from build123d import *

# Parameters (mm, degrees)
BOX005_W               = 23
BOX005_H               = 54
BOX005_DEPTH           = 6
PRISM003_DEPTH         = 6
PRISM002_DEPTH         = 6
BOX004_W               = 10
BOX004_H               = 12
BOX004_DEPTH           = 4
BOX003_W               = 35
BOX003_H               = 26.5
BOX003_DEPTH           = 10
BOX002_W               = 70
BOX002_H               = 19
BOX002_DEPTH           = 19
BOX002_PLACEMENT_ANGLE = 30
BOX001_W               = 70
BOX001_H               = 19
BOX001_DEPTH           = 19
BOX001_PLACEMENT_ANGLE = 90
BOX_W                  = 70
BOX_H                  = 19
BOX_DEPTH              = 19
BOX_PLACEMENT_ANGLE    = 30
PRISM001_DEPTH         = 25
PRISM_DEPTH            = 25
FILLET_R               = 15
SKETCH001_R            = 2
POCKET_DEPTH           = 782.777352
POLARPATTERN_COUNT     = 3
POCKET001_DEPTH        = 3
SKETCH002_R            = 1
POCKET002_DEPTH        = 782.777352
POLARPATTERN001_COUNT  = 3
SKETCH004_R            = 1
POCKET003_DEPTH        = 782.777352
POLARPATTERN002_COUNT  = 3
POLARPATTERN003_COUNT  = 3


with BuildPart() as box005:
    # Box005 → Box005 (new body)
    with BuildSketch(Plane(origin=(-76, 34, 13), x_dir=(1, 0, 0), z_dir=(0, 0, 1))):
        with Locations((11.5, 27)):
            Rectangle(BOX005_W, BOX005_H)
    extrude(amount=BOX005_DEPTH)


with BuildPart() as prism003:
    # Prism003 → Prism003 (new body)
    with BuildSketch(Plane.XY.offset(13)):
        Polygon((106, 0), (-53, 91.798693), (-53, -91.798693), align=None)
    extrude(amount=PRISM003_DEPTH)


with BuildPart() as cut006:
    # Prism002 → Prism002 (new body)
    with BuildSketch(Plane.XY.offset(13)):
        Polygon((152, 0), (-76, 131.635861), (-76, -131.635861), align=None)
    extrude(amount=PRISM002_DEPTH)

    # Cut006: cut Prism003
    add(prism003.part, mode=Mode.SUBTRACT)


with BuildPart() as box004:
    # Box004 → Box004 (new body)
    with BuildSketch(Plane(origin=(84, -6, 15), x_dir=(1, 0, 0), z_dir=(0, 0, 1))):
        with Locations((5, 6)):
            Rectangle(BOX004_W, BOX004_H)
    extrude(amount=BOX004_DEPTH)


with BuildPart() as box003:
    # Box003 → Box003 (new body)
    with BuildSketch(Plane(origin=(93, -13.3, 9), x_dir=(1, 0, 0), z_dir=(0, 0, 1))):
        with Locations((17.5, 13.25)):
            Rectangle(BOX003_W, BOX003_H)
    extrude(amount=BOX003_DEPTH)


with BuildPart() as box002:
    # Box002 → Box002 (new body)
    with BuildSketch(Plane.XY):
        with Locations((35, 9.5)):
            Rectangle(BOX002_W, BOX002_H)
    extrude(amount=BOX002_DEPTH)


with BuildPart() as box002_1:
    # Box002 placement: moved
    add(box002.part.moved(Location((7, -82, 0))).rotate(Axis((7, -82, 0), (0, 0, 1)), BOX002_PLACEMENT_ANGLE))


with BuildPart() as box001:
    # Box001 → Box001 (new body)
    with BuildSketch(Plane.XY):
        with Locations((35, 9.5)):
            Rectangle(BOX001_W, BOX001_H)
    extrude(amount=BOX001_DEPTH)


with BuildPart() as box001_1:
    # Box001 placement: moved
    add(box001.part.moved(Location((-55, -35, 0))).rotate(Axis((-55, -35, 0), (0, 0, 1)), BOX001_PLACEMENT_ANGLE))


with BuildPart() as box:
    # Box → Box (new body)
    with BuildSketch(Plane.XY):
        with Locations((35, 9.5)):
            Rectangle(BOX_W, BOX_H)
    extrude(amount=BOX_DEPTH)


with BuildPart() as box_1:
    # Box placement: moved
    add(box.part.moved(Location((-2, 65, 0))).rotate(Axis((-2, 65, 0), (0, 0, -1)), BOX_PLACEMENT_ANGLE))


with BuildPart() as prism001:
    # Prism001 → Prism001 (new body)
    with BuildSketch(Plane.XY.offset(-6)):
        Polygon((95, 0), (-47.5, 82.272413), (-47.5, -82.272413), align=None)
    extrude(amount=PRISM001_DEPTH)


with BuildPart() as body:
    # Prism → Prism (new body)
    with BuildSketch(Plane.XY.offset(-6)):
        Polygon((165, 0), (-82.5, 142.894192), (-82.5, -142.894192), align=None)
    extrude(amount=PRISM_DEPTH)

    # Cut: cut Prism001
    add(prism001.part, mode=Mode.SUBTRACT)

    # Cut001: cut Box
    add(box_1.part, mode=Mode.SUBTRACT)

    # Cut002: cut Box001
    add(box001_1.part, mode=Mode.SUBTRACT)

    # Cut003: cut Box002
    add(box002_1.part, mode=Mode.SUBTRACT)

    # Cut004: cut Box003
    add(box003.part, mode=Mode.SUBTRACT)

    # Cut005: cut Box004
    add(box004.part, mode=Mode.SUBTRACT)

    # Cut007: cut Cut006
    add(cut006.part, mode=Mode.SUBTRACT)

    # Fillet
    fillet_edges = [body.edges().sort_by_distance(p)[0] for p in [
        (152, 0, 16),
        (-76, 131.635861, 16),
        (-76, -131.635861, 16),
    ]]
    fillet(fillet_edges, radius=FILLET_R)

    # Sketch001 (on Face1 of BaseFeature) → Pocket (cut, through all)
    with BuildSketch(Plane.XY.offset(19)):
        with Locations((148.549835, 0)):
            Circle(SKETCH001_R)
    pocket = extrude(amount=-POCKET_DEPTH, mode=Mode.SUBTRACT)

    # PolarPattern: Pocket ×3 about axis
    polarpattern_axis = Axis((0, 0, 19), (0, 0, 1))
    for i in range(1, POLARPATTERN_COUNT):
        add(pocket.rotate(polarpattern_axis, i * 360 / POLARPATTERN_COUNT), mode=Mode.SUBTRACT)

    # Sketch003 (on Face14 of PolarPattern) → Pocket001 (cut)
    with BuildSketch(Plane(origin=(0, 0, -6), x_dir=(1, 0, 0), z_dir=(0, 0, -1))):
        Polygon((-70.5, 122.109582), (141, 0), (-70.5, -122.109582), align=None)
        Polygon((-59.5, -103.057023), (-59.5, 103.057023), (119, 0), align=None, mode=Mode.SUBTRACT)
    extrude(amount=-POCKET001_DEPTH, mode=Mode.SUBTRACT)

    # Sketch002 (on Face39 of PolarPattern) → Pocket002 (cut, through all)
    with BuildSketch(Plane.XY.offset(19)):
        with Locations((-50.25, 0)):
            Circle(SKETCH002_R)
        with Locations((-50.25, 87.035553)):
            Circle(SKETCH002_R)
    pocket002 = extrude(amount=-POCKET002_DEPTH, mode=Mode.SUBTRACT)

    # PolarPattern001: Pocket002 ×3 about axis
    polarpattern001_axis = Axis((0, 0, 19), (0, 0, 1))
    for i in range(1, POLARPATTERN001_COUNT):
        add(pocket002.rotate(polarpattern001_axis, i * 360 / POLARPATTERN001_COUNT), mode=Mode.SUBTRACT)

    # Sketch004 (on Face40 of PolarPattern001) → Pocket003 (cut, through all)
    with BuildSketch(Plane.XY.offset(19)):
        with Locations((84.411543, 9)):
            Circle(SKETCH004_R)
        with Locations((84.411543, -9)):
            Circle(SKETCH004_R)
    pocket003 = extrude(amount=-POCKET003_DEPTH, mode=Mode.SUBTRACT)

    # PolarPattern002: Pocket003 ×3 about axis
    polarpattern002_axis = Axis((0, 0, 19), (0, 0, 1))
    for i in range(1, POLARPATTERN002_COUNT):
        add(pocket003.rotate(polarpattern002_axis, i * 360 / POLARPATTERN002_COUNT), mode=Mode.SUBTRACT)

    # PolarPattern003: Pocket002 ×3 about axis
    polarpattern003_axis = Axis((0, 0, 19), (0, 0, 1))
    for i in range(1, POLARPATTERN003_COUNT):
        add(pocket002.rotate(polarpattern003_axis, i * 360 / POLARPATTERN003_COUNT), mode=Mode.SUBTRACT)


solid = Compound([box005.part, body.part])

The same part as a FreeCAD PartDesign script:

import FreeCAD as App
import Part
import Sketcher
from FreeCAD import Vector
Q = App.Units.Quantity


def edges_at(feature, points):
    """Names of the edges that pass closest to the given points."""
    edges = feature.Shape.Edges
    near = lambda p: min(range(len(edges)), key=lambda i: edges[i].distToShape(Part.Vertex(*p))[0])
    return sorted({f"Edge{near(p) + 1}" for p in points})

doc = App.newDocument("Part")
body = doc.addObject("PartDesign::Body", "Body")

sketch1 = body.newObject("Sketcher::SketchObject", "Sketch")
sketch1.AttachmentSupport = (doc.getObject("XY_Plane"), [""])
sketch1.MapMode = "FlatFace"
sketch1.AttachmentOffset = App.Placement(Vector(0, 0, 13), App.Rotation())
sketch1.addGeometry(Part.LineSegment(Vector(-76, 88, 0), Vector(-76, 34, 0)), False)
sketch1.addGeometry(Part.LineSegment(Vector(-76, 34, 0), Vector(-53, 34, 0)), False)
sketch1.addGeometry(Part.LineSegment(Vector(-53, 34, 0), Vector(-53, 88, 0)), False)
sketch1.addGeometry(Part.LineSegment(Vector(-53, 88, 0), Vector(-76, 88, 0)), False)
sketch1.addConstraint(Sketcher.Constraint("Coincident", 0, 2, 1, 1))
sketch1.addConstraint(Sketcher.Constraint("Coincident", 1, 2, 2, 1))
sketch1.addConstraint(Sketcher.Constraint("Coincident", 2, 2, 3, 1))
sketch1.addConstraint(Sketcher.Constraint("Coincident", 3, 2, 0, 1))
sketch1.addConstraint(Sketcher.Constraint("Vertical", 0))
sketch1.addConstraint(Sketcher.Constraint("Horizontal", 1))
sketch1.addConstraint(Sketcher.Constraint("Vertical", 2))
sketch1.addConstraint(Sketcher.Constraint("Horizontal", 3))
sketch1.addConstraint(Sketcher.Constraint("DistanceX", 1, 1, 1, 2, 23.0))
sketch1.addConstraint(Sketcher.Constraint("DistanceY", 0, 2, 0, 1, 54.0))
sketch1.addConstraint(Sketcher.Constraint("DistanceX", 0, 2, -1, 1, 76.0))
sketch1.addConstraint(Sketcher.Constraint("DistanceY", -1, 1, 0, 2, 34.0))
pad1 = body.newObject("PartDesign::Pad", "Pad")
pad1.Profile = sketch1
pad1.Length = 6
body2 = doc.addObject("PartDesign::Body", "Body001")

sketch2 = body2.newObject("Sketcher::SketchObject", "Sketch001")
sketch2.AttachmentSupport = (doc.getObject("XY_Plane001"), [""])
sketch2.MapMode = "FlatFace"
sketch2.AttachmentOffset = App.Placement(Vector(0, 0, 13), App.Rotation())
sketch2.addGeometry(Part.LineSegment(Vector(106, 0, 0), Vector(-53, 92, 0)), False)
sketch2.addGeometry(Part.LineSegment(Vector(-53, 92, 0), Vector(-53, -92, 0)), False)
sketch2.addGeometry(Part.LineSegment(Vector(-53, -92, 0), Vector(106, 0, 0)), False)
sketch2.addConstraint(Sketcher.Constraint("Coincident", 0, 2, 1, 1))
sketch2.addConstraint(Sketcher.Constraint("Coincident", 1, 2, 2, 1))
sketch2.addConstraint(Sketcher.Constraint("Coincident", 2, 2, 0, 1))
sketch2.addConstraint(Sketcher.Constraint("Vertical", 1))
sketch2.addConstraint(Sketcher.Constraint("PointOnObject", 2, 2, -1))
sketch2.addConstraint(Sketcher.Constraint("Equal", 0, 2))
sketch2.addConstraint(Sketcher.Constraint("Angle", 0, Q("150 deg")))
sketch2.addConstraint(Sketcher.Constraint("DistanceX", 0, 2, -1, 1, 53.0))
sketch2.addConstraint(Sketcher.Constraint("DistanceX", -1, 1, 2, 2, 106.0))
pad2 = body2.newObject("PartDesign::Pad", "Pad001")
pad2.Profile = sketch2
pad2.Length = 6
body3 = doc.addObject("PartDesign::Body", "Body002")

sketch3 = body3.newObject("Sketcher::SketchObject", "Sketch002")
sketch3.AttachmentSupport = (doc.getObject("XY_Plane002"), [""])
sketch3.MapMode = "FlatFace"
sketch3.AttachmentOffset = App.Placement(Vector(0, 0, 13), App.Rotation())
sketch3.addGeometry(Part.LineSegment(Vector(152, 0, 0), Vector(-76, 132, 0)), False)
sketch3.addGeometry(Part.LineSegment(Vector(-76, 132, 0), Vector(-76, -132, 0)), False)
sketch3.addGeometry(Part.LineSegment(Vector(-76, -132, 0), Vector(152, 0, 0)), False)
sketch3.addConstraint(Sketcher.Constraint("Coincident", 0, 2, 1, 1))
sketch3.addConstraint(Sketcher.Constraint("Coincident", 1, 2, 2, 1))
sketch3.addConstraint(Sketcher.Constraint("Coincident", 2, 2, 0, 1))
sketch3.addConstraint(Sketcher.Constraint("Vertical", 1))
sketch3.addConstraint(Sketcher.Constraint("PointOnObject", 2, 2, -1))
sketch3.addConstraint(Sketcher.Constraint("Equal", 0, 2))
sketch3.addConstraint(Sketcher.Constraint("Angle", 0, Q("150 deg")))
sketch3.addConstraint(Sketcher.Constraint("DistanceX", 0, 2, -1, 1, 76.0))
sketch3.addConstraint(Sketcher.Constraint("DistanceX", -1, 1, 2, 2, 152.0))
pad3 = body3.newObject("PartDesign::Pad", "Pad002")
pad3.Profile = sketch3
pad3.Length = 6
doc.recompute()

boolean = body3.newObject("PartDesign::Boolean", "Boolean")
boolean.Type = "Cut"
boolean.addObjects([body2])
body4 = doc.addObject("PartDesign::Body", "Body003")

sketch4 = body4.newObject("Sketcher::SketchObject", "Sketch003")
sketch4.AttachmentSupport = (doc.getObject("XY_Plane003"), [""])
sketch4.MapMode = "FlatFace"
sketch4.AttachmentOffset = App.Placement(Vector(0, 0, 15), App.Rotation())
sketch4.addGeometry(Part.LineSegment(Vector(84, 6, 0), Vector(84, -6, 0)), False)
sketch4.addGeometry(Part.LineSegment(Vector(84, -6, 0), Vector(94, -6, 0)), False)
sketch4.addGeometry(Part.LineSegment(Vector(94, -6, 0), Vector(94, 6, 0)), False)
sketch4.addGeometry(Part.LineSegment(Vector(94, 6, 0), Vector(84, 6, 0)), False)
sketch4.addConstraint(Sketcher.Constraint("Coincident", 0, 2, 1, 1))
sketch4.addConstraint(Sketcher.Constraint("Coincident", 1, 2, 2, 1))
sketch4.addConstraint(Sketcher.Constraint("Coincident", 2, 2, 3, 1))
sketch4.addConstraint(Sketcher.Constraint("Coincident", 3, 2, 0, 1))
sketch4.addConstraint(Sketcher.Constraint("Vertical", 0))
sketch4.addConstraint(Sketcher.Constraint("Horizontal", 1))
sketch4.addConstraint(Sketcher.Constraint("Vertical", 2))
sketch4.addConstraint(Sketcher.Constraint("Horizontal", 3))
sketch4.addConstraint(Sketcher.Constraint("DistanceX", 1, 1, 1, 2, 10.0))
sketch4.addConstraint(Sketcher.Constraint("DistanceY", 0, 2, 0, 1, 12.0))
sketch4.addConstraint(Sketcher.Constraint("DistanceX", -1, 1, 0, 2, 84.0))
sketch4.addConstraint(Sketcher.Constraint("DistanceY", 0, 2, -1, 1, 6.0))
pad4 = body4.newObject("PartDesign::Pad", "Pad003")
pad4.Profile = sketch4
pad4.Length = 4
body5 = doc.addObject("PartDesign::Body", "Body004")

sketch5 = body5.newObject("Sketcher::SketchObject", "Sketch004")
sketch5.AttachmentSupport = (doc.getObject("XY_Plane004"), [""])
sketch5.MapMode = "FlatFace"
sketch5.AttachmentOffset = App.Placement(Vector(0, 0, 9), App.Rotation())
sketch5.addGeometry(Part.LineSegment(Vector(93, 13, 0), Vector(93, -13, 0)), False)
sketch5.addGeometry(Part.LineSegment(Vector(93, -13, 0), Vector(128, -13, 0)), False)
sketch5.addGeometry(Part.LineSegment(Vector(128, -13, 0), Vector(128, 13, 0)), False)
sketch5.addGeometry(Part.LineSegment(Vector(128, 13, 0), Vector(93, 13, 0)), False)
sketch5.addConstraint(Sketcher.Constraint("Coincident", 0, 2, 1, 1))
sketch5.addConstraint(Sketcher.Constraint("Coincident", 1, 2, 2, 1))
sketch5.addConstraint(Sketcher.Constraint("Coincident", 2, 2, 3, 1))
sketch5.addConstraint(Sketcher.Constraint("Coincident", 3, 2, 0, 1))
sketch5.addConstraint(Sketcher.Constraint("Vertical", 0))
sketch5.addConstraint(Sketcher.Constraint("Horizontal", 1))
sketch5.addConstraint(Sketcher.Constraint("Vertical", 2))
sketch5.addConstraint(Sketcher.Constraint("Horizontal", 3))
sketch5.addConstraint(Sketcher.Constraint("DistanceX", 1, 1, 1, 2, 35.0))
sketch5.addConstraint(Sketcher.Constraint("DistanceY", 0, 2, 0, 1, 26.5))
sketch5.addConstraint(Sketcher.Constraint("DistanceX", -1, 1, 0, 2, 93.0))
sketch5.addConstraint(Sketcher.Constraint("DistanceY", 0, 2, -1, 1, 13.3))
pad5 = body5.newObject("PartDesign::Pad", "Pad004")
pad5.Profile = sketch5
pad5.Length = 10
body6 = doc.addObject("PartDesign::Body", "Body005")

sketch6 = body6.newObject("Sketcher::SketchObject", "Sketch005")
sketch6.AttachmentSupport = (doc.getObject("XY_Plane005"), [""])
sketch6.MapMode = "FlatFace"
sketch6.addGeometry(Part.LineSegment(Vector(0, 19, 0), Vector(0, 0, 0)), False)
sketch6.addGeometry(Part.LineSegment(Vector(0, 0, 0), Vector(70, 0, 0)), False)
sketch6.addGeometry(Part.LineSegment(Vector(70, 0, 0), Vector(70, 19, 0)), False)
sketch6.addGeometry(Part.LineSegment(Vector(70, 19, 0), Vector(0, 19, 0)), False)
sketch6.addConstraint(Sketcher.Constraint("Coincident", 0, 2, 1, 1))
sketch6.addConstraint(Sketcher.Constraint("Coincident", 1, 2, 2, 1))
sketch6.addConstraint(Sketcher.Constraint("Coincident", 2, 2, 3, 1))
sketch6.addConstraint(Sketcher.Constraint("Coincident", 3, 2, 0, 1))
sketch6.addConstraint(Sketcher.Constraint("Vertical", 0))
sketch6.addConstraint(Sketcher.Constraint("Horizontal", 1))
sketch6.addConstraint(Sketcher.Constraint("Vertical", 2))
sketch6.addConstraint(Sketcher.Constraint("Horizontal", 3))
sketch6.addConstraint(Sketcher.Constraint("Coincident", 0, 2, -1, 1))
sketch6.addConstraint(Sketcher.Constraint("DistanceX", 1, 1, 1, 2, 70.0))
sketch6.addConstraint(Sketcher.Constraint("DistanceY", 0, 2, 0, 1, 19.0))
pad6 = body6.newObject("PartDesign::Pad", "Pad005")
pad6.Profile = sketch6
pad6.Length = 19
body7 = doc.addObject("PartDesign::Body", "Body006")
doc.recompute()

body6.Placement = App.Placement(Vector(7, -82, 0), App.Rotation(Vector(0, 0, 1), 30))
boolean2 = body7.newObject("PartDesign::Boolean", "Boolean001")
boolean2.Type = "Fuse"
boolean2.addObjects([body6])
body8 = doc.addObject("PartDesign::Body", "Body007")

sketch7 = body8.newObject("Sketcher::SketchObject", "Sketch006")
sketch7.AttachmentSupport = (doc.getObject("XY_Plane007"), [""])
sketch7.MapMode = "FlatFace"
sketch7.addGeometry(Part.LineSegment(Vector(0, 19, 0), Vector(0, 0, 0)), False)
sketch7.addGeometry(Part.LineSegment(Vector(0, 0, 0), Vector(70, 0, 0)), False)
sketch7.addGeometry(Part.LineSegment(Vector(70, 0, 0), Vector(70, 19, 0)), False)
sketch7.addGeometry(Part.LineSegment(Vector(70, 19, 0), Vector(0, 19, 0)), False)
sketch7.addConstraint(Sketcher.Constraint("Coincident", 0, 2, 1, 1))
sketch7.addConstraint(Sketcher.Constraint("Coincident", 1, 2, 2, 1))
sketch7.addConstraint(Sketcher.Constraint("Coincident", 2, 2, 3, 1))
sketch7.addConstraint(Sketcher.Constraint("Coincident", 3, 2, 0, 1))
sketch7.addConstraint(Sketcher.Constraint("Vertical", 0))
sketch7.addConstraint(Sketcher.Constraint("Horizontal", 1))
sketch7.addConstraint(Sketcher.Constraint("Vertical", 2))
sketch7.addConstraint(Sketcher.Constraint("Horizontal", 3))
sketch7.addConstraint(Sketcher.Constraint("Coincident", 0, 2, -1, 1))
sketch7.addConstraint(Sketcher.Constraint("DistanceX", 1, 1, 1, 2, 70.0))
sketch7.addConstraint(Sketcher.Constraint("DistanceY", 0, 2, 0, 1, 19.0))
pad7 = body8.newObject("PartDesign::Pad", "Pad006")
pad7.Profile = sketch7
pad7.Length = 19
body9 = doc.addObject("PartDesign::Body", "Body008")
doc.recompute()

body8.Placement = App.Placement(Vector(-55, -35, 0), App.Rotation(Vector(0, 0, 1), 90))
boolean3 = body9.newObject("PartDesign::Boolean", "Boolean002")
boolean3.Type = "Fuse"
boolean3.addObjects([body8])
body10 = doc.addObject("PartDesign::Body", "Body009")

sketch8 = body10.newObject("Sketcher::SketchObject", "Sketch007")
sketch8.AttachmentSupport = (doc.getObject("XY_Plane009"), [""])
sketch8.MapMode = "FlatFace"
sketch8.addGeometry(Part.LineSegment(Vector(0, 19, 0), Vector(0, 0, 0)), False)
sketch8.addGeometry(Part.LineSegment(Vector(0, 0, 0), Vector(70, 0, 0)), False)
sketch8.addGeometry(Part.LineSegment(Vector(70, 0, 0), Vector(70, 19, 0)), False)
sketch8.addGeometry(Part.LineSegment(Vector(70, 19, 0), Vector(0, 19, 0)), False)
sketch8.addConstraint(Sketcher.Constraint("Coincident", 0, 2, 1, 1))
sketch8.addConstraint(Sketcher.Constraint("Coincident", 1, 2, 2, 1))
sketch8.addConstraint(Sketcher.Constraint("Coincident", 2, 2, 3, 1))
sketch8.addConstraint(Sketcher.Constraint("Coincident", 3, 2, 0, 1))
sketch8.addConstraint(Sketcher.Constraint("Vertical", 0))
sketch8.addConstraint(Sketcher.Constraint("Horizontal", 1))
sketch8.addConstraint(Sketcher.Constraint("Vertical", 2))
sketch8.addConstraint(Sketcher.Constraint("Horizontal", 3))
sketch8.addConstraint(Sketcher.Constraint("Coincident", 0, 2, -1, 1))
sketch8.addConstraint(Sketcher.Constraint("DistanceX", 1, 1, 1, 2, 70.0))
sketch8.addConstraint(Sketcher.Constraint("DistanceY", 0, 2, 0, 1, 19.0))
pad8 = body10.newObject("PartDesign::Pad", "Pad007")
pad8.Profile = sketch8
pad8.Length = 19
body11 = doc.addObject("PartDesign::Body", "Body010")
doc.recompute()

body10.Placement = App.Placement(Vector(-2, 65, 0), App.Rotation(Vector(0, 0, -1), 30))
boolean4 = body11.newObject("PartDesign::Boolean", "Boolean003")
boolean4.Type = "Fuse"
boolean4.addObjects([body10])
body12 = doc.addObject("PartDesign::Body", "Body011")

sketch9 = body12.newObject("Sketcher::SketchObject", "Sketch008")
sketch9.AttachmentSupport = (doc.getObject("XY_Plane011"), [""])
sketch9.MapMode = "FlatFace"
sketch9.AttachmentOffset = App.Placement(Vector(0, 0, -6), App.Rotation())
sketch9.addGeometry(Part.LineSegment(Vector(95, 0, 0), Vector(-48, 82, 0)), False)
sketch9.addGeometry(Part.LineSegment(Vector(-48, 82, 0), Vector(-48, -82, 0)), False)
sketch9.addGeometry(Part.LineSegment(Vector(-48, -82, 0), Vector(95, 0, 0)), False)
sketch9.addConstraint(Sketcher.Constraint("Coincident", 0, 2, 1, 1))
sketch9.addConstraint(Sketcher.Constraint("Coincident", 1, 2, 2, 1))
sketch9.addConstraint(Sketcher.Constraint("Coincident", 2, 2, 0, 1))
sketch9.addConstraint(Sketcher.Constraint("Vertical", 1))
sketch9.addConstraint(Sketcher.Constraint("PointOnObject", 2, 2, -1))
sketch9.addConstraint(Sketcher.Constraint("Equal", 0, 2))
sketch9.addConstraint(Sketcher.Constraint("Angle", 0, Q("150 deg")))
sketch9.addConstraint(Sketcher.Constraint("DistanceX", -1, 1, 2, 2, 95.0))
sketch9.addConstraint(Sketcher.Constraint("DistanceX", 0, 2, -1, 1, 47.5))
pad9 = body12.newObject("PartDesign::Pad", "Pad008")
pad9.Profile = sketch9
pad9.Length = 25
body13 = doc.addObject("PartDesign::Body", "Body012")

sketch10 = body13.newObject("Sketcher::SketchObject", "Sketch009")
sketch10.AttachmentSupport = (doc.getObject("XY_Plane012"), [""])
sketch10.MapMode = "FlatFace"
sketch10.AttachmentOffset = App.Placement(Vector(0, 0, -6), App.Rotation())
sketch10.addGeometry(Part.LineSegment(Vector(165, 0, 0), Vector(-82, 143, 0)), False)
sketch10.addGeometry(Part.LineSegment(Vector(-82, 143, 0), Vector(-82, -143, 0)), False)
sketch10.addGeometry(Part.LineSegment(Vector(-82, -143, 0), Vector(165, 0, 0)), False)
sketch10.addConstraint(Sketcher.Constraint("Coincident", 0, 2, 1, 1))
sketch10.addConstraint(Sketcher.Constraint("Coincident", 1, 2, 2, 1))
sketch10.addConstraint(Sketcher.Constraint("Coincident", 2, 2, 0, 1))
sketch10.addConstraint(Sketcher.Constraint("Vertical", 1))
sketch10.addConstraint(Sketcher.Constraint("PointOnObject", 2, 2, -1))
sketch10.addConstraint(Sketcher.Constraint("Equal", 0, 2))
sketch10.addConstraint(Sketcher.Constraint("Angle", 0, Q("150 deg")))
sketch10.addConstraint(Sketcher.Constraint("DistanceX", -1, 1, 2, 2, 165.0))
sketch10.addConstraint(Sketcher.Constraint("DistanceX", 0, 2, -1, 1, 82.5))
pad10 = body13.newObject("PartDesign::Pad", "Pad009")
pad10.Profile = sketch10
pad10.Length = 25
doc.recompute()

boolean5 = body13.newObject("PartDesign::Boolean", "Boolean004")
boolean5.Type = "Cut"
boolean5.addObjects([body12])
doc.recompute()

boolean6 = body13.newObject("PartDesign::Boolean", "Boolean005")
boolean6.Type = "Cut"
boolean6.addObjects([body11])
doc.recompute()

boolean7 = body13.newObject("PartDesign::Boolean", "Boolean006")
boolean7.Type = "Cut"
boolean7.addObjects([body9])
doc.recompute()

boolean8 = body13.newObject("PartDesign::Boolean", "Boolean007")
boolean8.Type = "Cut"
boolean8.addObjects([body7])
doc.recompute()

boolean9 = body13.newObject("PartDesign::Boolean", "Boolean008")
boolean9.Type = "Cut"
boolean9.addObjects([body5])
doc.recompute()

boolean10 = body13.newObject("PartDesign::Boolean", "Boolean009")
boolean10.Type = "Cut"
boolean10.addObjects([body4])
doc.recompute()

boolean11 = body13.newObject("PartDesign::Boolean", "Boolean010")
boolean11.Type = "Cut"
boolean11.addObjects([body3])
doc.recompute()

fillet = body13.newObject("PartDesign::Fillet", "Fillet")
fillet.Base = (boolean11, edges_at(boolean11, [(152, 0, 16), (-76, 131.636, 16), (-76, -131.636, 16)]))
fillet.Radius = 15

sketch11 = body13.newObject("Sketcher::SketchObject", "Sketch010")
sketch11.AttachmentSupport = (doc.getObject("XY_Plane012"), [""])
sketch11.MapMode = "FlatFace"
sketch11.AttachmentOffset = App.Placement(Vector(0, 0, 19), App.Rotation())
sketch11.addGeometry(Part.Circle(Vector(148.5, 0, 0), Vector(0, 0, 1), 2), False)
sketch11.addConstraint(Sketcher.Constraint("PointOnObject", 0, 3, -1))
sketch11.addConstraint(Sketcher.Constraint("Diameter", 0, 4.0))
sketch11.addConstraint(Sketcher.Constraint("DistanceX", -1, 1, 0, 3, 148.549835))
pocket1 = body13.newObject("PartDesign::Pocket", "Pocket")
pocket1.Profile = sketch11
pocket1.Type = "ThroughAll"
doc.recompute()

polarpattern = body13.newObject("PartDesign::PolarPattern", "PolarPattern")
polarpattern.Originals = [pocket1]
polarpattern.Axis = (doc.getObject("Z_Axis012"), [""])
polarpattern.Angle = 360
polarpattern.Occurrences = 3
body13.Tip = polarpattern

sketch12 = body13.newObject("Sketcher::SketchObject", "Sketch011")
sketch12.AttachmentSupport = (doc.getObject("XY_Plane012"), [""])
sketch12.MapMode = "FlatFace"
sketch12.AttachmentOffset = App.Placement(Vector(0, 0, -6), App.Rotation())
sketch12.addGeometry(Part.LineSegment(Vector(141, 0, 0), Vector(-70, -122, 0)), False)
sketch12.addGeometry(Part.LineSegment(Vector(-70, -122, 0), Vector(-70, 122, 0)), False)
sketch12.addGeometry(Part.LineSegment(Vector(-70, 122, 0), Vector(141, 0, 0)), False)
sketch12.addGeometry(Part.LineSegment(Vector(-60, 103, 0), Vector(-60, -103, 0)), False)
sketch12.addGeometry(Part.LineSegment(Vector(-60, -103, 0), Vector(119, 0, 0)), False)
sketch12.addGeometry(Part.LineSegment(Vector(119, 0, 0), Vector(-60, 103, 0)), False)
sketch12.addConstraint(Sketcher.Constraint("Coincident", 0, 2, 1, 1))
sketch12.addConstraint(Sketcher.Constraint("Coincident", 1, 2, 2, 1))
sketch12.addConstraint(Sketcher.Constraint("Coincident", 2, 2, 0, 1))
sketch12.addConstraint(Sketcher.Constraint("Coincident", 3, 2, 4, 1))
sketch12.addConstraint(Sketcher.Constraint("Coincident", 4, 2, 5, 1))
sketch12.addConstraint(Sketcher.Constraint("Coincident", 5, 2, 3, 1))
sketch12.addConstraint(Sketcher.Constraint("Vertical", 1))
sketch12.addConstraint(Sketcher.Constraint("Vertical", 3))
sketch12.addConstraint(Sketcher.Constraint("PointOnObject", 2, 2, -1))
sketch12.addConstraint(Sketcher.Constraint("PointOnObject", 4, 2, -1))
sketch12.addConstraint(Sketcher.Constraint("Parallel", 0, 4))
sketch12.addConstraint(Sketcher.Constraint("Parallel", 2, 5))
sketch12.addConstraint(Sketcher.Constraint("Equal", 0, 2))
sketch12.addConstraint(Sketcher.Constraint("Angle", 0, Q("-150 deg")))
sketch12.addConstraint(Sketcher.Constraint("DistanceX", -1, 1, 2, 2, 141.0))
sketch12.addConstraint(Sketcher.Constraint("DistanceX", -1, 1, 4, 2, 119.0))
sketch12.addConstraint(Sketcher.Constraint("DistanceX", 0, 2, 3, 2, 11.0))
sketch12.addConstraint(Sketcher.Constraint("DistanceX", 0, 2, -1, 1, 70.5))
pocket2 = body13.newObject("PartDesign::Pocket", "Pocket001")
pocket2.Profile = sketch12
pocket2.Length = 3
pocket2.Reversed = True

sketch13 = body13.newObject("Sketcher::SketchObject", "Sketch012")
sketch13.AttachmentSupport = (doc.getObject("XY_Plane012"), [""])
sketch13.MapMode = "FlatFace"
sketch13.AttachmentOffset = App.Placement(Vector(0, 0, 19), App.Rotation())
sketch13.addGeometry(Part.Circle(Vector(-50.2, 0, 0), Vector(0, 0, 1), 1), False)
sketch13.addGeometry(Part.Circle(Vector(-50.2, 87, 0), Vector(0, 0, 1), 1), False)
sketch13.addConstraint(Sketcher.Constraint("Equal", 0, 1))
sketch13.addConstraint(Sketcher.Constraint("PointOnObject", 0, 3, -1))
sketch13.addConstraint(Sketcher.Constraint("Vertical", 0, 3, 1, 3))
sketch13.addConstraint(Sketcher.Constraint("Diameter", 0, 2.0))
sketch13.addConstraint(Sketcher.Constraint("DistanceX", 0, 3, -1, 1, 50.25))
sketch13.addConstraint(Sketcher.Constraint("DistanceY", -1, 1, 1, 3, 87.035553))
pocket3 = body13.newObject("PartDesign::Pocket", "Pocket002")
pocket3.Profile = sketch13
pocket3.Type = "ThroughAll"
doc.recompute()

polarpattern2 = body13.newObject("PartDesign::PolarPattern", "PolarPattern001")
polarpattern2.Originals = [pocket3]
polarpattern2.Axis = (doc.getObject("Z_Axis012"), [""])
polarpattern2.Angle = 360
polarpattern2.Occurrences = 3
body13.Tip = polarpattern2

sketch14 = body13.newObject("Sketcher::SketchObject", "Sketch013")
sketch14.AttachmentSupport = (doc.getObject("XY_Plane012"), [""])
sketch14.MapMode = "FlatFace"
sketch14.AttachmentOffset = App.Placement(Vector(0, 0, 19), App.Rotation())
sketch14.addGeometry(Part.Circle(Vector(84.4, 9, 0), Vector(0, 0, 1), 1), False)
sketch14.addGeometry(Part.Circle(Vector(84.4, -9, 0), Vector(0, 0, 1), 1), False)
sketch14.addConstraint(Sketcher.Constraint("Equal", 0, 1))
sketch14.addConstraint(Sketcher.Constraint("Symmetric", 0, 3, 1, 3, -1))
sketch14.addConstraint(Sketcher.Constraint("Diameter", 0, 2.0))
sketch14.addConstraint(Sketcher.Constraint("DistanceY", -1, 1, 0, 3, 9.0))
sketch14.addConstraint(Sketcher.Constraint("DistanceX", -1, 1, 0, 3, 84.411543))
pocket4 = body13.newObject("PartDesign::Pocket", "Pocket003")
pocket4.Profile = sketch14
pocket4.Type = "ThroughAll"
doc.recompute()

polarpattern3 = body13.newObject("PartDesign::PolarPattern", "PolarPattern002")
polarpattern3.Originals = [pocket4]
polarpattern3.Axis = (doc.getObject("Z_Axis012"), [""])
polarpattern3.Angle = 360
polarpattern3.Occurrences = 3
body13.Tip = polarpattern3
doc.recompute()

polarpattern4 = body13.newObject("PartDesign::PolarPattern", "PolarPattern003")
polarpattern4.Originals = [pocket3]
polarpattern4.Axis = (doc.getObject("Z_Axis012"), [""])
polarpattern4.Angle = 360
polarpattern4.Occurrences = 3
body13.Tip = polarpattern4

doc.recompute()
